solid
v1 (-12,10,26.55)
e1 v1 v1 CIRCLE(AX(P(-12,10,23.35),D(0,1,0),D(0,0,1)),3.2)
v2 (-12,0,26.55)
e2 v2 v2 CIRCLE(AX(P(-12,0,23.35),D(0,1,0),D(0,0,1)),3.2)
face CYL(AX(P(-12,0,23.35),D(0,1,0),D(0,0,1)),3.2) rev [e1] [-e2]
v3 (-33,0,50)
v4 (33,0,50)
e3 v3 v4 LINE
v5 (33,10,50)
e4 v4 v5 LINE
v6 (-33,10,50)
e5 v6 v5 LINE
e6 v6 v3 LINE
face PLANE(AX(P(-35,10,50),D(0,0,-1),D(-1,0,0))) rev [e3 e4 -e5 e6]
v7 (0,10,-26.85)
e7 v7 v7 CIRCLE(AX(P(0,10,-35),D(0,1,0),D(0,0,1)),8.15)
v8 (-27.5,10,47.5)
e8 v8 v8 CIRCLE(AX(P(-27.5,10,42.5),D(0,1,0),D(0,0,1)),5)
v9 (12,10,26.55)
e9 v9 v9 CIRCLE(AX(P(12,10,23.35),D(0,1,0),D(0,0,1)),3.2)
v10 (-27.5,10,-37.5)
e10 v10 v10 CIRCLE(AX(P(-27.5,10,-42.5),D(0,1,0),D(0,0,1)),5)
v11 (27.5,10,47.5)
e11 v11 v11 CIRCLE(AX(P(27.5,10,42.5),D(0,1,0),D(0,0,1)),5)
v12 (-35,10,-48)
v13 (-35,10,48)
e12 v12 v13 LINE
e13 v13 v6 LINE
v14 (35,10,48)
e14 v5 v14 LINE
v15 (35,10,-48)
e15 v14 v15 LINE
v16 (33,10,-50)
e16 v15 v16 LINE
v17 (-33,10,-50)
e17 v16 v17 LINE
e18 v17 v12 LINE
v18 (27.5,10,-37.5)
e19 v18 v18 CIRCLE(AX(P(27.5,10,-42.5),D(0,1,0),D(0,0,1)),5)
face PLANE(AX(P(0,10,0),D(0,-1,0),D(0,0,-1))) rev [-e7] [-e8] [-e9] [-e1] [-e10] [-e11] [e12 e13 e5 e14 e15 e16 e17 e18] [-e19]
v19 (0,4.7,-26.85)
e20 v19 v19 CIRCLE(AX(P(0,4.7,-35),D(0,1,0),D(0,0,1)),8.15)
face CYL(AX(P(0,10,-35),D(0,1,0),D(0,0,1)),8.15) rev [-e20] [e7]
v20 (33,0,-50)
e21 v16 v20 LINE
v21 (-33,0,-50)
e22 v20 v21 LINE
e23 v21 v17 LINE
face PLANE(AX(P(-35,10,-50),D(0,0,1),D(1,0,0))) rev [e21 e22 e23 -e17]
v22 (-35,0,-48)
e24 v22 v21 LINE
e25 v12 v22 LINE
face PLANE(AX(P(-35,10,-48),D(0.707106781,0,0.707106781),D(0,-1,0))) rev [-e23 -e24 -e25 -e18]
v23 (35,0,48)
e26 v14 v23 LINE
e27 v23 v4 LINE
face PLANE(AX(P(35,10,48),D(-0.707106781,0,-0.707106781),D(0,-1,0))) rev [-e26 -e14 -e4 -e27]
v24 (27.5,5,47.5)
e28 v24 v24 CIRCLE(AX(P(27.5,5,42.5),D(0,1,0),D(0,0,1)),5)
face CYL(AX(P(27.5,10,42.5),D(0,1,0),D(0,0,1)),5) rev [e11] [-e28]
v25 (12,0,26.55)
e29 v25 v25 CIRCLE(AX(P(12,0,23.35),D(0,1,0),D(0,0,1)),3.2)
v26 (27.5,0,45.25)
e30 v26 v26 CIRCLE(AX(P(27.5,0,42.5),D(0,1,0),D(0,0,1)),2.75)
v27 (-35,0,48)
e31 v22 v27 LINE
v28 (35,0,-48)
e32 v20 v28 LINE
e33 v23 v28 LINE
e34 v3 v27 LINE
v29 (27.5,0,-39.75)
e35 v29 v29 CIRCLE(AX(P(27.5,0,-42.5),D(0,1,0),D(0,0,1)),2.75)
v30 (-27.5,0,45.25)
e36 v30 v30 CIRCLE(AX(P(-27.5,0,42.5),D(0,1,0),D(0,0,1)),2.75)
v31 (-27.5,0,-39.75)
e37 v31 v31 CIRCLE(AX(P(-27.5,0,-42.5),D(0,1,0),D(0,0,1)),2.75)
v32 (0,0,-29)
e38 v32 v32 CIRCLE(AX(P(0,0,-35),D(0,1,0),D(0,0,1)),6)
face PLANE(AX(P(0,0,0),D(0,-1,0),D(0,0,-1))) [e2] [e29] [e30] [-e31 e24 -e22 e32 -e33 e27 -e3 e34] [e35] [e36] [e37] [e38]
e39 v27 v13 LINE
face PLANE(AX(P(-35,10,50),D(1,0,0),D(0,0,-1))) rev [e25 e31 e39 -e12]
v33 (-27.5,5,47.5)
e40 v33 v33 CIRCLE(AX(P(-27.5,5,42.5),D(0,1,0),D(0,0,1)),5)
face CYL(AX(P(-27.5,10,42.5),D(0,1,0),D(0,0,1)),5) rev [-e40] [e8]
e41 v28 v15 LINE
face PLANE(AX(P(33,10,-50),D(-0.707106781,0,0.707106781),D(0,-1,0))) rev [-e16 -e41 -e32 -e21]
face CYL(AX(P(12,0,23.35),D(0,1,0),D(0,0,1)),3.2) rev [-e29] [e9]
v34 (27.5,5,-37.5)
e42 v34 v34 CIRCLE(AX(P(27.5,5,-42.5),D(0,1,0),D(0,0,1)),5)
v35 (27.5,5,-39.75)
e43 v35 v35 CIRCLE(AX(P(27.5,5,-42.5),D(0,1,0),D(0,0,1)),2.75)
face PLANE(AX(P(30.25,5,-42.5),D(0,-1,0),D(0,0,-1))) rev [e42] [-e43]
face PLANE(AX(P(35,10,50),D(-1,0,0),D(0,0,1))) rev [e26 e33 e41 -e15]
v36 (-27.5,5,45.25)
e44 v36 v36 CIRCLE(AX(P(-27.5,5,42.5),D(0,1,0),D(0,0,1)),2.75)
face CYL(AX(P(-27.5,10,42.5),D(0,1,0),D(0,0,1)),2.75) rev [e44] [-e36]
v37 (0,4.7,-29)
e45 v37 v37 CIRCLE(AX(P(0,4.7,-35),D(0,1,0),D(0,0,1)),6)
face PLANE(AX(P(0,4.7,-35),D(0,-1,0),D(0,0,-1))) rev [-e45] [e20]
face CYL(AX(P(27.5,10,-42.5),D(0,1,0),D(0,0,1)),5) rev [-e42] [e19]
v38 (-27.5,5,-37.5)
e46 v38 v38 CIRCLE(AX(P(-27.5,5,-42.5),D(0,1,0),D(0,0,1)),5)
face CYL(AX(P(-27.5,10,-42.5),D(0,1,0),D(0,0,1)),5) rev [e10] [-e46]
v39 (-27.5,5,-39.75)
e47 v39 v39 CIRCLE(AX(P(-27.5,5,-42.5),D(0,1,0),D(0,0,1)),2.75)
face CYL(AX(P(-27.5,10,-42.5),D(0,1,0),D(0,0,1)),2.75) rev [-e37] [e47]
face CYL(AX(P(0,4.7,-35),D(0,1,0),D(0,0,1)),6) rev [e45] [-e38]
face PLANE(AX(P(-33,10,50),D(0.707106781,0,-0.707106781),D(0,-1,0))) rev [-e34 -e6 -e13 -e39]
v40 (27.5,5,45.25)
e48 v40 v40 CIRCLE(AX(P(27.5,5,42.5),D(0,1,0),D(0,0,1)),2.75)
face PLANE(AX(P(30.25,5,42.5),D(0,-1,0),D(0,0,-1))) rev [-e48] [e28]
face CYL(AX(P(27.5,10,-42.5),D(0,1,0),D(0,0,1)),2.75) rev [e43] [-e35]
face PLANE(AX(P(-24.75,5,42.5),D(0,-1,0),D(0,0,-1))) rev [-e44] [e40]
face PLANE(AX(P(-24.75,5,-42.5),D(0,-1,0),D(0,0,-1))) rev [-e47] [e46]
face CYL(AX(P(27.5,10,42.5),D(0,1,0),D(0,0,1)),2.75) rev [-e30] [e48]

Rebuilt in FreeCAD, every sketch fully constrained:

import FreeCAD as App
import Part
import Sketcher
from FreeCAD import Vector
Q = App.Units.Quantity


def edges_at(feature, points):
    """Names of the edges that pass closest to the given points."""
    edges = feature.Shape.Edges
    near = lambda p: min(range(len(edges)), key=lambda i: edges[i].distToShape(Part.Vertex(*p))[0])
    return sorted({f"Edge{near(p) + 1}" for p in points})

doc = App.newDocument("Part")
body = doc.addObject("PartDesign::Body", "Body")

sketch1 = body.newObject("Sketcher::SketchObject", "Sketch")
sketch1.AttachmentSupport = (doc.getObject("XZ_Plane"), [""])
sketch1.MapMode = "FlatFace"
sketch1.addGeometry([
    Part.LineSegment(Vector(-35, -50, 0), Vector(-35, 50, 0)),
    Part.LineSegment(Vector(-35, 50, 0), Vector(35, 50, 0)),
    Part.LineSegment(Vector(35, 50, 0), Vector(35, -50, 0)),
    Part.LineSegment(Vector(35, -50, 0), Vector(-35, -50, 0)),
], False)
sketch1.addConstraint([
    Sketcher.Constraint("Coincident", 0, 2, 1, 1),
    Sketcher.Constraint("Coincident", 1, 2, 2, 1),
    Sketcher.Constraint("Coincident", 2, 2, 3, 1),
    Sketcher.Constraint("Coincident", 3, 2, 0, 1),
    Sketcher.Constraint("Vertical", 0),
    Sketcher.Constraint("Horizontal", 1),
    Sketcher.Constraint("Vertical", 2),
    Sketcher.Constraint("Horizontal", 3),
    Sketcher.Constraint("Symmetric", 0, 2, 2, 2, -1, 1),
    Sketcher.Constraint("DistanceX", 1, 1, 1, 2, Q("70 mm")),
    Sketcher.Constraint("DistanceY", 0, 1, 0, 2, Q("100 mm")),
])
pad1 = body.newObject("PartDesign::Pad", "Pad")
pad1.Profile = sketch1
pad1.Length = 10
pad1.Reversed = True

sketch2 = body.newObject("Sketcher::SketchObject", "Sketch001")
sketch2.AttachmentSupport = (doc.getObject("XZ_Plane"), [""])
sketch2.MapMode = "FlatFace"
sketch2.AttachmentOffset = App.Placement(Vector(0, 0, -10), App.Rotation())
sketch2.addGeometry([
    Part.Circle(Vector(-27.5, 42.5, 0), Vector(0, 0, 1), 2.75),
    Part.Circle(Vector(-27.5, -42.5, 0), Vector(0, 0, 1), 2.75),
    Part.Circle(Vector(27.5, -42.5, 0), Vector(0, 0, 1), 2.75),
    Part.Circle(Vector(27.5, 42.5, 0), Vector(0, 0, 1), 2.75),
], False)
sketch2.addConstraint([
    Sketcher.Constraint("Equal", 0, 1),
    Sketcher.Constraint("Equal", 1, 2),
    Sketcher.Constraint("Equal", 2, 3),
    Sketcher.Constraint("Symmetric", 0, 3, 2, 3, -1, 1),
    Sketcher.Constraint("Symmetric", 1, 3, 3, 3, -1, 1),
    Sketcher.Constraint("Symmetric", 1, 3, 2, 3, -2),
    Sketcher.Constraint("Diameter", 0, Q("5.5 mm")),
    Sketcher.Constraint("DistanceY", 1, 3, 0, 3, Q("85 mm")),
    Sketcher.Constraint("DistanceX", 1, 3, 2, 3, Q("55 mm")),
])
doc.recompute()
hole = body.newObject("PartDesign::Hole", "Hole")
hole.Profile = sketch2
hole.ThreadType = "None"
hole.Diameter = 5.5
hole.DepthType = "ThroughAll"
hole.HoleCutType = "Counterbore"
hole.HoleCutDiameter = 10
hole.HoleCutDepth = 5
hole.Reversed = True

sketch3 = body.newObject("Sketcher::SketchObject", "Sketch002")
sketch3.AttachmentSupport = (doc.getObject("XZ_Plane"), [""])
sketch3.MapMode = "FlatFace"
sketch3.AttachmentOffset = App.Placement(Vector(0, 0, -10), App.Rotation())
sketch3.addGeometry(Part.Circle(Vector(0, -35, 0), Vector(0, 0, 1), 8.15), False)
sketch3.addConstraint([
    Sketcher.Constraint("PointOnObject", 0, 3, -2),
    Sketcher.Constraint("Diameter", 0, Q("16.3 mm")),
    Sketcher.Constraint("DistanceY", 0, 3, -1, 1, Q("35 mm")),
])
doc.recompute()
hole2 = body.newObject("PartDesign::Hole", "Hole001")
hole2.Profile = sketch3
hole2.ThreadType = "None"
hole2.Diameter = 16.3
hole2.DepthType = "Dimension"
hole2.Depth = 5.3
hole2.DrillPoint = "Flat"
hole2.Reversed = True

sketch4 = body.newObject("Sketcher::SketchObject", "Sketch003")
sketch4.AttachmentSupport = (doc.getObject("XZ_Plane"), [""])
sketch4.MapMode = "FlatFace"
sketch4.AttachmentOffset = App.Placement(Vector(0, 0, -4.7), App.Rotation())
sketch4.addGeometry(Part.Circle(Vector(0, -35, 0), Vector(0, 0, 1), 6), False)
sketch4.addConstraint([
    Sketcher.Constraint("PointOnObject", 0, 3, -2),
    Sketcher.Constraint("Diameter", 0, Q("12 mm")),
    Sketcher.Constraint("DistanceY", 0, 3, -1, 1, Q("35 mm")),
])
doc.recompute()
hole3 = body.newObject("PartDesign::Hole", "Hole002")
hole3.Profile = sketch4
hole3.ThreadType = "None"
hole3.Diameter = 12
hole3.DepthType = "ThroughAll"
hole3.Reversed = True

sketch5 = body.newObject("Sketcher::SketchObject", "Sketch004")
sketch5.AttachmentSupport = (doc.getObject("XZ_Plane"), [""])
sketch5.MapMode = "FlatFace"
sketch5.AttachmentOffset = App.Placement(Vector(0, 0, -10), App.Rotation())
sketch5.addGeometry([
    Part.Circle(Vector(12, 23.35, 0), Vector(0, 0, 1), 3.2),
    Part.Circle(Vector(-12, 23.35, 0), Vector(0, 0, 1), 3.2),
], False)
sketch5.addConstraint([
    Sketcher.Constraint("Equal", 0, 1),
    Sketcher.Constraint("Symmetric", 0, 3, 1, 3, -2),
    Sketcher.Constraint("Diameter", 0, Q("6.4 mm")),
    Sketcher.Constraint("DistanceX", -1, 1, 0, 3, Q("12 mm")),
    Sketcher.Constraint("DistanceY", -1, 1, 0, 3, Q("23.35 mm")),
])
pocket1 = body.newObject("PartDesign::Pocket", "Pocket")
pocket1.Profile = sketch5
pocket1.Type = "ThroughAll"
pocket1.Reversed = True
doc.recompute()

chamfer = body.newObject("PartDesign::Chamfer", "Chamfer")
chamfer.Base = (pocket1, edges_at(pocket1, [
    (35, 5, 50),
    (-35, 5, 50),
    (-35, 5, -50),
    (35, 5, -50),
]))
chamfer.Size = 2

doc.recompute()
